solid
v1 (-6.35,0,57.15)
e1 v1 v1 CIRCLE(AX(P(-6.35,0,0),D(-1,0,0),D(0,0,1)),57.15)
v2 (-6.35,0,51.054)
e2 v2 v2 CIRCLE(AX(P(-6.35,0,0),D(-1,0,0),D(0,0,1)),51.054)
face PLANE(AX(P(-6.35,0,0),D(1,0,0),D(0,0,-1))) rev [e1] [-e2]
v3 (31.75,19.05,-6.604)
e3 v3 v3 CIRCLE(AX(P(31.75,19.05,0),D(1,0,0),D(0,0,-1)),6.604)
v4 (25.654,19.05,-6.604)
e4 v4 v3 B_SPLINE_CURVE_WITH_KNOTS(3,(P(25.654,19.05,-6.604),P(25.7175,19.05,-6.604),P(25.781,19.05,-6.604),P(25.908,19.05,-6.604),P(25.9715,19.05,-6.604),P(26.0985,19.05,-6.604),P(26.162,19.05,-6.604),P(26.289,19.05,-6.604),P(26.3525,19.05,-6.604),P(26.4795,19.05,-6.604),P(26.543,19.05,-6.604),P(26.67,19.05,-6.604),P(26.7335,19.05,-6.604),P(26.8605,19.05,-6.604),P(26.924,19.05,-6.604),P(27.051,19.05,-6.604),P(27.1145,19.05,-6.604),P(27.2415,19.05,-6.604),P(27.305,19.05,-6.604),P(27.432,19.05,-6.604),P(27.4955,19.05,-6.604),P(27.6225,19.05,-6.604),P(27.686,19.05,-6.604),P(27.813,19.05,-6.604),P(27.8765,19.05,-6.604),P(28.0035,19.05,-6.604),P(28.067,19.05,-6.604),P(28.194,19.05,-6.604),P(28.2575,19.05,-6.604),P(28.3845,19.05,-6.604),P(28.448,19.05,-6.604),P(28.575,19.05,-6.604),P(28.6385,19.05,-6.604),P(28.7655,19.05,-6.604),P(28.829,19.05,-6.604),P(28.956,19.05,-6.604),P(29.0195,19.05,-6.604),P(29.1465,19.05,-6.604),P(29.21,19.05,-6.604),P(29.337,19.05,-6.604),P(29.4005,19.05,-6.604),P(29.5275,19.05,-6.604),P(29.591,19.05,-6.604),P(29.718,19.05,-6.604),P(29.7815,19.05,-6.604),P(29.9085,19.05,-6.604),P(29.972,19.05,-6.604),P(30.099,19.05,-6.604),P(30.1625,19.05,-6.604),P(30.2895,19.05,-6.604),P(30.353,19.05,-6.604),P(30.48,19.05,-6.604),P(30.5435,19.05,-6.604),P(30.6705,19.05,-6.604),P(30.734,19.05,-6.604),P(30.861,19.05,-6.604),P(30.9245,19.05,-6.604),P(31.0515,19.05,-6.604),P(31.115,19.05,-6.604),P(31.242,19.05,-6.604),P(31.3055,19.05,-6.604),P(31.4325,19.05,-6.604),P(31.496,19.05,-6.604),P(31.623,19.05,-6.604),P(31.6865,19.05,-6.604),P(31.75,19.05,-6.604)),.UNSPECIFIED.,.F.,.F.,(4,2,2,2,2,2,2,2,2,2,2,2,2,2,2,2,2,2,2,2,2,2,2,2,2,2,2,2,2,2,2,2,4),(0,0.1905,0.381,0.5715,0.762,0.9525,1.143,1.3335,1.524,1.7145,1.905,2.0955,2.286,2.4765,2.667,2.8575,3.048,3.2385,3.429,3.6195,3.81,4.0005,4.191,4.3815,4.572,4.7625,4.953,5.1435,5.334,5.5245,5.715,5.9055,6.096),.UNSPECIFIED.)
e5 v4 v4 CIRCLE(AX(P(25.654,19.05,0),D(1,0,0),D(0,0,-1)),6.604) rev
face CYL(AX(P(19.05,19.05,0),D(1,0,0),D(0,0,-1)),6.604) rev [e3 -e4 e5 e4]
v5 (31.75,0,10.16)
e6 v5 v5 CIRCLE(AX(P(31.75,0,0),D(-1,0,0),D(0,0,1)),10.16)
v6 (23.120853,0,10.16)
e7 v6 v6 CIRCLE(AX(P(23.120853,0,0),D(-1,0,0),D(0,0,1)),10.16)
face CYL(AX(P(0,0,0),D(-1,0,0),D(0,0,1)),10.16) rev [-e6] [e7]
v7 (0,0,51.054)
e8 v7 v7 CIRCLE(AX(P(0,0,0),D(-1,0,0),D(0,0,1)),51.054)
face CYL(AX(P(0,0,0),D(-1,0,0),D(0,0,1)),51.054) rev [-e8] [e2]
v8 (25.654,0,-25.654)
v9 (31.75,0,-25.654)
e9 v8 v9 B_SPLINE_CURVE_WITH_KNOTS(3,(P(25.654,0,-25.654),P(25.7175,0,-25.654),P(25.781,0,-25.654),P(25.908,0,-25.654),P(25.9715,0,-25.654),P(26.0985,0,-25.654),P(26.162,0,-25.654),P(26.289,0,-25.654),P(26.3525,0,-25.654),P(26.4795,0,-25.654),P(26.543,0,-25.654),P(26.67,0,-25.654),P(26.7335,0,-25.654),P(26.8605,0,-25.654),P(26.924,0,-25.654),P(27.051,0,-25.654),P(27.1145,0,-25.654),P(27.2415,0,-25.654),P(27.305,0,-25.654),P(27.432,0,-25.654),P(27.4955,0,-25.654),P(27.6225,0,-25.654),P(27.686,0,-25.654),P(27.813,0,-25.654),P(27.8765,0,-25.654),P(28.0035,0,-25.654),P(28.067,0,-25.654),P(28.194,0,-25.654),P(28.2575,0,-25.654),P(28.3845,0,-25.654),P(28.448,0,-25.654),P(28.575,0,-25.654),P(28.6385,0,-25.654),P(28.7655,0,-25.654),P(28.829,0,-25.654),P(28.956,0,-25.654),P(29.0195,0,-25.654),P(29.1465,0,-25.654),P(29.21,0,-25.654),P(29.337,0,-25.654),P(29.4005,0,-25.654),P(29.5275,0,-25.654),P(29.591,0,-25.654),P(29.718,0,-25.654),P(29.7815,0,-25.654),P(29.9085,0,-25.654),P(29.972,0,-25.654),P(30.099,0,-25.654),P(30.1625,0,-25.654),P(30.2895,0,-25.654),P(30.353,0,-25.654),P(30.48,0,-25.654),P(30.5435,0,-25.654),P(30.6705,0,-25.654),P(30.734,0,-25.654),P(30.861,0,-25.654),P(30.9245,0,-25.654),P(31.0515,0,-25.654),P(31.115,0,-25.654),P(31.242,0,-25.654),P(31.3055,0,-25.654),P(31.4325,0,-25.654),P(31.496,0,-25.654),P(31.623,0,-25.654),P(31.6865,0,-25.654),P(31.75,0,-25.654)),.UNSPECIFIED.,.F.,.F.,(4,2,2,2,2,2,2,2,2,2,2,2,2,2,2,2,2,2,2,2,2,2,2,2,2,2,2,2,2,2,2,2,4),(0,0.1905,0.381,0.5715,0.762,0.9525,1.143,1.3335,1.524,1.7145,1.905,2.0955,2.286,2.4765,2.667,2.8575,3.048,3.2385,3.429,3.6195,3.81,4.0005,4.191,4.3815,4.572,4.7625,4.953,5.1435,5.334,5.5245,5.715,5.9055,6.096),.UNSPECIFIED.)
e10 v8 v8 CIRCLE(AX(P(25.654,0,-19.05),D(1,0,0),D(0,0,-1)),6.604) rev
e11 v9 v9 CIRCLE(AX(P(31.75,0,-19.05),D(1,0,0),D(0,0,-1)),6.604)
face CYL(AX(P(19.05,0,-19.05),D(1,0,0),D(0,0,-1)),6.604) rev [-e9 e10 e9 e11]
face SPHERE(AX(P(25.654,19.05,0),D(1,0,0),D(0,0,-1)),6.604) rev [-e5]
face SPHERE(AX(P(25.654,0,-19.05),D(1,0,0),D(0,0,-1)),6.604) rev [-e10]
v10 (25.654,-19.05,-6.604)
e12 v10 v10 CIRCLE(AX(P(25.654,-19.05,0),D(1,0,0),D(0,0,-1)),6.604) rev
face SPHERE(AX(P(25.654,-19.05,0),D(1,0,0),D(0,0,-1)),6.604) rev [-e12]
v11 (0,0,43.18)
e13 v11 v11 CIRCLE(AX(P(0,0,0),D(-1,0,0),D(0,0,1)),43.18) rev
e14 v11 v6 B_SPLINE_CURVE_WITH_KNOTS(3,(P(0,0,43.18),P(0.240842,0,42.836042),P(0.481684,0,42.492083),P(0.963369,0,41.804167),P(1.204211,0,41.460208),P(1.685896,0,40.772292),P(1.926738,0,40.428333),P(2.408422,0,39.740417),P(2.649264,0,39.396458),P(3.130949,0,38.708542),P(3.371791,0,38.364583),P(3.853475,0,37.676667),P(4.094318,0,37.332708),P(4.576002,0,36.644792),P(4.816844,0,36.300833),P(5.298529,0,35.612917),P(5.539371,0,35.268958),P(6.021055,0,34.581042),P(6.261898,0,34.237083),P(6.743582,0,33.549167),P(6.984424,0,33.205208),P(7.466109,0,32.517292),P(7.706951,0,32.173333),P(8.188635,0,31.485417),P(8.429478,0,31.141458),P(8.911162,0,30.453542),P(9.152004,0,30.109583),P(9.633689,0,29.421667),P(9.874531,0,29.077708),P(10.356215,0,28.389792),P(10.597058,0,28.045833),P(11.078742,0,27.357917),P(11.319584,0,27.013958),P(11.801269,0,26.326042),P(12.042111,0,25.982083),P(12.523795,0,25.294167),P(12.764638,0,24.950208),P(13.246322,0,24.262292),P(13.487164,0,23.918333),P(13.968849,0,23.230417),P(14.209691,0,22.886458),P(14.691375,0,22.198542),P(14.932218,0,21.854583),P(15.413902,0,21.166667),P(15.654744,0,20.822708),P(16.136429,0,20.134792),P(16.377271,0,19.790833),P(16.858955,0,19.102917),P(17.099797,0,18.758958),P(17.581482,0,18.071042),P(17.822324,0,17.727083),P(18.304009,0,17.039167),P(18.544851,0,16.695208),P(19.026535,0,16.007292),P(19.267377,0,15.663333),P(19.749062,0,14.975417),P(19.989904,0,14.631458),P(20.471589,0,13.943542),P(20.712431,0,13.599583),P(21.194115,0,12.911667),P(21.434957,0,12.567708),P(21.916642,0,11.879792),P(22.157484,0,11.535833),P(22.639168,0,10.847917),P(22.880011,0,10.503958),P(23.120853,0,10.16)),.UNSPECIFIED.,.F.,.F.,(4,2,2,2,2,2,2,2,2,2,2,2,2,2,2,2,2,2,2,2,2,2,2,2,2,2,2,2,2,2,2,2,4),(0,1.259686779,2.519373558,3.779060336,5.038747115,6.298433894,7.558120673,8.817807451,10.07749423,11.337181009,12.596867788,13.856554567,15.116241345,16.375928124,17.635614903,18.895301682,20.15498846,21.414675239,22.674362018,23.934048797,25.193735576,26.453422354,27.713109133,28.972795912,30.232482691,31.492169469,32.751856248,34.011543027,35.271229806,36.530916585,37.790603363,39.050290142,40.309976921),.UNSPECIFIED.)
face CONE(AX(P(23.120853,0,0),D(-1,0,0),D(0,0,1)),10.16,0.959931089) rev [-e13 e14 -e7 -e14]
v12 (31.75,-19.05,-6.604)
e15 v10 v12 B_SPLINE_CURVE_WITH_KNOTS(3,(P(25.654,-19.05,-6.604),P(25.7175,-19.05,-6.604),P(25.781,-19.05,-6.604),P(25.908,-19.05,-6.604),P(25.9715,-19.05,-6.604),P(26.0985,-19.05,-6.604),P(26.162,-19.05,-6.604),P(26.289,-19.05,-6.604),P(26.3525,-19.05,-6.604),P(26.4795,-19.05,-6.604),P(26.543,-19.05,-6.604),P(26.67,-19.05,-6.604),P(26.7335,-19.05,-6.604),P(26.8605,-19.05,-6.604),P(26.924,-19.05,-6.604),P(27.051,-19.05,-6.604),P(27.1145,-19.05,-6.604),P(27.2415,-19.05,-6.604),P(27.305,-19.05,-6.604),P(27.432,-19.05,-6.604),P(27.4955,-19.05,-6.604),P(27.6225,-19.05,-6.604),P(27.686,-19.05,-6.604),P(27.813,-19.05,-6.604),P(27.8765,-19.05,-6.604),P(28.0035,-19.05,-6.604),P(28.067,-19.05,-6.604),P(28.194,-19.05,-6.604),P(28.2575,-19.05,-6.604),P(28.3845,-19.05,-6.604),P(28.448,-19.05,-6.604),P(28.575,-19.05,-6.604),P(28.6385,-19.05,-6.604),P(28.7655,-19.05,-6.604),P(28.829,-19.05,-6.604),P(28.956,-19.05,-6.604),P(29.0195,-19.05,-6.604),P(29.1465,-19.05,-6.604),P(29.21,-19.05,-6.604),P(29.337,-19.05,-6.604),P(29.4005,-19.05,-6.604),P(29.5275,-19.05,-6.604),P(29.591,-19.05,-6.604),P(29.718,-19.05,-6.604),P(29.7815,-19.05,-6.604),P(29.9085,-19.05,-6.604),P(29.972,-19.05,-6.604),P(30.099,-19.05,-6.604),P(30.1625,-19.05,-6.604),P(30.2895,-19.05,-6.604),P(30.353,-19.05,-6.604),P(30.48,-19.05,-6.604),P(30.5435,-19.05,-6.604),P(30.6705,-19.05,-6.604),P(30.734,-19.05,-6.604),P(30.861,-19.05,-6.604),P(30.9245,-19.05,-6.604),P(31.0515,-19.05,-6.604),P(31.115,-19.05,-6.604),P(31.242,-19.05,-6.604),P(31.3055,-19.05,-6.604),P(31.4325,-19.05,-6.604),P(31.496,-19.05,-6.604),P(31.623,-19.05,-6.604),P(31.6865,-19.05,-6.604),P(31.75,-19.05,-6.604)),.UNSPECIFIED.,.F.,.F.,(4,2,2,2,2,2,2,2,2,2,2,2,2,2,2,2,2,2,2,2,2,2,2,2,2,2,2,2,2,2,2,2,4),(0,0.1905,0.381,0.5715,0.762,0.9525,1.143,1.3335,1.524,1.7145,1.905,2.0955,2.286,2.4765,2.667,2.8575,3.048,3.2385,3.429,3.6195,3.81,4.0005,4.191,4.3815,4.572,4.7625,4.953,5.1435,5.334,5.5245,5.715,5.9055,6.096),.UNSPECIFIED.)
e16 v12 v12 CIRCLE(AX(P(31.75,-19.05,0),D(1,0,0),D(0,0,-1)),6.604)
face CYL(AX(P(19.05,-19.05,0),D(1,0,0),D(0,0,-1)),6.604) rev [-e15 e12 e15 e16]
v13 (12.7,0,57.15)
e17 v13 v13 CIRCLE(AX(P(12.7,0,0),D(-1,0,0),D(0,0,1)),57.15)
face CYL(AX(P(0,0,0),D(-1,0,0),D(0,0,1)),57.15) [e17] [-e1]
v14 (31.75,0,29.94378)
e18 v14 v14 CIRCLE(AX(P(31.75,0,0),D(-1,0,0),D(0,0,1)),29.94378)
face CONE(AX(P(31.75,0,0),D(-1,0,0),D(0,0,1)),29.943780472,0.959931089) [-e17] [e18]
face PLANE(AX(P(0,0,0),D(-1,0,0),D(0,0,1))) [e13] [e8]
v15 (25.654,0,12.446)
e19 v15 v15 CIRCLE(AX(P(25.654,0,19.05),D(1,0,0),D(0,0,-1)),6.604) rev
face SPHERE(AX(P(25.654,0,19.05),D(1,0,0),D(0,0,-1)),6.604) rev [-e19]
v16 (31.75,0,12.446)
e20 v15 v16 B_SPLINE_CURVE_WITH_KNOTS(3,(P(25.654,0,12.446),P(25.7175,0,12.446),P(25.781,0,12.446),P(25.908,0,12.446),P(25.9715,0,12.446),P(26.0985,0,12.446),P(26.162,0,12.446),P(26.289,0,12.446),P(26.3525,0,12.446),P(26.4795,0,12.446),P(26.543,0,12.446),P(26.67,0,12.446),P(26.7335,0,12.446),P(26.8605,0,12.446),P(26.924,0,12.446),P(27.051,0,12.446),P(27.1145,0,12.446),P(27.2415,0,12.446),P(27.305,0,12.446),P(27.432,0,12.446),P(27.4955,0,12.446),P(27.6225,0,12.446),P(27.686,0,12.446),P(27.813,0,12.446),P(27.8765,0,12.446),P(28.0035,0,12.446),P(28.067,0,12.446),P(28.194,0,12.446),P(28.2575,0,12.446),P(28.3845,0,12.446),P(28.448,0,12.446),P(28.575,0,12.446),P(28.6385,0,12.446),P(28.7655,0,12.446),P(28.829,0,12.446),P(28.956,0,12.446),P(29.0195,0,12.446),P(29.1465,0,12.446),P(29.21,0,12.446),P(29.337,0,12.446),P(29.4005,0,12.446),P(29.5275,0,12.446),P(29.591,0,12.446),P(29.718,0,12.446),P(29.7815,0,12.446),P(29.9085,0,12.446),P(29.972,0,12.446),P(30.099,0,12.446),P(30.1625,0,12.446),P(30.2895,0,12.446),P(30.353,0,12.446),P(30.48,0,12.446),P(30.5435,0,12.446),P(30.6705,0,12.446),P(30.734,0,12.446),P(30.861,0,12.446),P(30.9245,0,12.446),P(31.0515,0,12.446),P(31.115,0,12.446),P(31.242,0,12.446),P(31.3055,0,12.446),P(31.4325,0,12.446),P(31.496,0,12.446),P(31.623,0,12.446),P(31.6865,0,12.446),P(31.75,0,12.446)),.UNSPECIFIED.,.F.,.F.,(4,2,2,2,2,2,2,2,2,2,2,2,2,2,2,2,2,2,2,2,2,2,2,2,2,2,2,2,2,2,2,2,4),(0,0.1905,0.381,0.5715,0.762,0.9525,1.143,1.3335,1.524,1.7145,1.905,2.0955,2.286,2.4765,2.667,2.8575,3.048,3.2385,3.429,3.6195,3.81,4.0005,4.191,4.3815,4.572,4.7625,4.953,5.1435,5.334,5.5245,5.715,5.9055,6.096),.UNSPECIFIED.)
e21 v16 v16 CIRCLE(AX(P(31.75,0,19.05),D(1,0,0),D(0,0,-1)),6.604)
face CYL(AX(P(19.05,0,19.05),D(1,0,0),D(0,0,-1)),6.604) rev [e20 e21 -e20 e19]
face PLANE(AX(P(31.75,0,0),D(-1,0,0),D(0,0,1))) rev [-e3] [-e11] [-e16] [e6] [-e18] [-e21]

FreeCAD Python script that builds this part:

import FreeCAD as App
import Part
import Sketcher
Q = App.Units.Quantity


def edges_at(feature, points):
    """Names of the edges that pass closest to the given points."""
    edges = feature.Shape.Edges
    near = lambda p: min(range(len(edges)), key=lambda i: edges[i].distToShape(Part.Vertex(*p))[0])
    return sorted({f"Edge{near(p) + 1}" for p in points})


def add_polygon(sketch, points):
    """Adds a closed chain of lines whose ends are joined by coincident constraints."""
    first, n = sketch.GeometryCount, len(points)
    for a, b in zip(points, points[1:] + points[:1]):
        sketch.addGeometry(Part.LineSegment(App.Vector(*a, 0), App.Vector(*b, 0)), False)
    for i in range(n):
        sketch.addConstraint(Sketcher.Constraint("Coincident", first + i, 2, first + (i + 1) % n, 1))

doc = App.newDocument("Part")
body = doc.addObject("PartDesign::Body", "Body")

# Sketch on XY plane
sketch1 = doc.addObject("Sketcher::SketchObject", "Sketch")
body.addObject(sketch1)
sketch1.AttachmentSupport = (doc.XY_Plane, [""])
sketch1.MapMode = "FlatFace"
add_polygon(sketch1, [(0, 51), (0, 10), (32, 10), (32, 30), (13, 57), (-6, 57), (-6, 51)])  # lines 0-6
sketch1.addConstraint(Sketcher.Constraint("Vertical", 0))
sketch1.addConstraint(Sketcher.Constraint("Horizontal", 1))
sketch1.addConstraint(Sketcher.Constraint("Vertical", 2))
sketch1.addConstraint(Sketcher.Constraint("Horizontal", 4))
sketch1.addConstraint(Sketcher.Constraint("Vertical", 5))
sketch1.addConstraint(Sketcher.Constraint("Horizontal", 6))
sketch1.addConstraint(Sketcher.Constraint("PointOnObject", 0, 2, -2))
sketch1.addConstraint(Sketcher.Constraint("Angle", 3, Q("125 deg")))
sketch1.addConstraint(Sketcher.Constraint("DistanceX", 1, 1, 1, 2, Q("1.25 in")))
sketch1.addConstraint(Sketcher.Constraint("DistanceX", 4, 2, 4, 1, Q("0.75 in")))
sketch1.addConstraint(Sketcher.Constraint("DistanceX", 6, 1, 6, 2, Q("0.25 in")))
sketch1.addConstraint(Sketcher.Constraint("DistanceY", 0, 2, 0, 1, Q("1.61 in")))
sketch1.addConstraint(Sketcher.Constraint("DistanceY", 5, 2, 5, 1, Q("0.24 in")))
sketch1.addConstraint(Sketcher.Constraint("DistanceY", -1, 1, 0, 2, Q("0.4 in")))
revolution = doc.addObject("PartDesign::Revolution", "Revolution")
body.addObject(revolution)
revolution.Profile = sketch1
revolution.ReferenceAxis = (sketch1, ["H_Axis"])
revolution.Angle = 360

# Sketch on YZ plane
sketch2 = doc.addObject("Sketcher::SketchObject", "Sketch001")
body.addObject(sketch2)
sketch2.AttachmentSupport = (doc.YZ_Plane, [""])
sketch2.MapMode = "FlatFace"
sketch2.AttachmentOffset = App.Placement(App.Vector(0, 0, 1.25 * 25.4), App.Rotation())
sketch2.addGeometry(Part.Circle(App.Vector(0, 19, 0), App.Vector(0, 0, 1), 7), False)
sketch2.addGeometry(Part.Circle(App.Vector(19, 0, 0), App.Vector(0, 0, 1), 7), False)
sketch2.addGeometry(Part.Circle(App.Vector(0, -19, 0), App.Vector(0, 0, 1), 7), False)
sketch2.addGeometry(Part.Circle(App.Vector(-19, 0, 0), App.Vector(0, 0, 1), 7), False)
sketch2.addConstraint(Sketcher.Constraint("Equal", 0, 1))
sketch2.addConstraint(Sketcher.Constraint("Equal", 1, 2))
sketch2.addConstraint(Sketcher.Constraint("Equal", 2, 3))
sketch2.addConstraint(Sketcher.Constraint("Symmetric", 0, 3, 2, 3, -1, 1))
sketch2.addConstraint(Sketcher.Constraint("Symmetric", 1, 3, 3, 3, -1, 1))
sketch2.addConstraint(Sketcher.Constraint("PointOnObject", 0, 3, -2))
sketch2.addConstraint(Sketcher.Constraint("PointOnObject", 1, 3, -1))
sketch2.addConstraint(Sketcher.Constraint("Diameter", 0, Q("0.52 in")))
sketch2.addConstraint(Sketcher.Constraint("DistanceY", 2, 3, 0, 3, Q("1.5 in")))
sketch2.addConstraint(Sketcher.Constraint("DistanceX", 3, 3, 1, 3, Q("1.5 in")))
pocket1 = doc.addObject("PartDesign::Pocket", "Pocket")
body.addObject(pocket1)
pocket1.Profile = sketch2
pocket1.Length = Q("0.5 in")
doc.recompute()

fillet = doc.addObject("PartDesign::Fillet", "Fillet")
body.addObject(fillet)
fillet.Base = (pocket1, edges_at(pocket1, [
    (19.05, 0, 25.654),
    (19.05, 19.05, 6.604),
    (19.05, 0, -12.446),
    (19.05, -19.05, 6.604),
]))
fillet.Radius = Q("0.26 in")
doc.recompute()

chamfer = doc.addObject("PartDesign::Chamfer", "Chamfer")
body.addObject(chamfer)
chamfer.Base = (fillet, edges_at(fillet, [(0, 0, -10.16)]))
chamfer.ChamferType = "Two distances"
chamfer.Size = Q("1.3 in")
chamfer.Size2 = 23.120853
chamfer.FlipDirection = True

doc.recompute()
